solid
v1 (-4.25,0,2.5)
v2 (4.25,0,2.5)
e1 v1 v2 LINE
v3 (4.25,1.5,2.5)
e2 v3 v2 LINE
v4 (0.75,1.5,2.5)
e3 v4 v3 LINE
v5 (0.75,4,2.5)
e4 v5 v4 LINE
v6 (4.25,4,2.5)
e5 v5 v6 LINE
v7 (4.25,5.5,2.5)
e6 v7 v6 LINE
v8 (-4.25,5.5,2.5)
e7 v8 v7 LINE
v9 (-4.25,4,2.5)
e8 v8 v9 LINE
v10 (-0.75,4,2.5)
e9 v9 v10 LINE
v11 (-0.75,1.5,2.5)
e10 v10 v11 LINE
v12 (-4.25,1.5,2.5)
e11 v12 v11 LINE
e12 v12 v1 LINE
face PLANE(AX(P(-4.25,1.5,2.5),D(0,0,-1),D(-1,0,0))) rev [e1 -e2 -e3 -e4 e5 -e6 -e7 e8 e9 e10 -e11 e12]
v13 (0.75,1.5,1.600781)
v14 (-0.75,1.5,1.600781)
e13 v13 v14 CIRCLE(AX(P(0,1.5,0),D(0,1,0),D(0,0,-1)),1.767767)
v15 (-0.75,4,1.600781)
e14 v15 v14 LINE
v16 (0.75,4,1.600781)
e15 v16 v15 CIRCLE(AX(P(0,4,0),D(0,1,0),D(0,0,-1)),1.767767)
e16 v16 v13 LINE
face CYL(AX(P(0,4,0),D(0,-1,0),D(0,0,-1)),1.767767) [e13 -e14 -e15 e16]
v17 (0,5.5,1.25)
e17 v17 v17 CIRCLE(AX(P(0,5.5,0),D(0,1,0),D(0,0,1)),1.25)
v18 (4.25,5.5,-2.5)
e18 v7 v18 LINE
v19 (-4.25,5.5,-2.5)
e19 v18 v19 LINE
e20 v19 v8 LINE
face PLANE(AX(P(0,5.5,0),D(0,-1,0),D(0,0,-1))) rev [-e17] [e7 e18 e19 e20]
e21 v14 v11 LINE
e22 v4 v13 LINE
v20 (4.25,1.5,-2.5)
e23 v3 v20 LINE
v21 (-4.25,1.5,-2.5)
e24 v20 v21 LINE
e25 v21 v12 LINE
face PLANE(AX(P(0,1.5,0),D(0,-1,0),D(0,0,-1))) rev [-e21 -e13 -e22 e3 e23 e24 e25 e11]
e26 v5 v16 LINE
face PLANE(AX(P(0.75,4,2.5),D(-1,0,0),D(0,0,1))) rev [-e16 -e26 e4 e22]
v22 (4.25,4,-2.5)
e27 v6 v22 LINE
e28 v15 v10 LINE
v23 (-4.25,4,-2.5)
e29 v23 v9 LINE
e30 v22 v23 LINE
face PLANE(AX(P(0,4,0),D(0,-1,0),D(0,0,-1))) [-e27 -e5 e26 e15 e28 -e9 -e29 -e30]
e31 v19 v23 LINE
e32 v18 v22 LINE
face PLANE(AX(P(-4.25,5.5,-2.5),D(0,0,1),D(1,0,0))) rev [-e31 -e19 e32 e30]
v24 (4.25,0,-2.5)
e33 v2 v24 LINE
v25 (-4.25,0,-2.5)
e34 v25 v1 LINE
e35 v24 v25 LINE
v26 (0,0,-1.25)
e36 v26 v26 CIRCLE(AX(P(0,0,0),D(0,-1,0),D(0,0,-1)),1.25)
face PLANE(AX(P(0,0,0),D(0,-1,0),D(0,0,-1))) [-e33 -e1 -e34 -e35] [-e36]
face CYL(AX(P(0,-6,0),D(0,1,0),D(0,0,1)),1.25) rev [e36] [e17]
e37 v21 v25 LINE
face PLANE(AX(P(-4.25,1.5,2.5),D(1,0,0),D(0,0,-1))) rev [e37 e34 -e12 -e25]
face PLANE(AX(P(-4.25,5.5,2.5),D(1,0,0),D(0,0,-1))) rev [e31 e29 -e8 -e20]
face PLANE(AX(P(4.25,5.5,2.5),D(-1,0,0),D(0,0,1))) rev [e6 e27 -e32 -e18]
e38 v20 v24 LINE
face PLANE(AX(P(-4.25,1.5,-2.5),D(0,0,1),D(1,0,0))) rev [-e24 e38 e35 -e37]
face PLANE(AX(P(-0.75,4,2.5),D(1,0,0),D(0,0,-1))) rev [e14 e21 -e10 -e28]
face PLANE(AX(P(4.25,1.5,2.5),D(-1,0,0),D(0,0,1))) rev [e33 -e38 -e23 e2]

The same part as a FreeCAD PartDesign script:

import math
import FreeCAD as App
import Part
import Sketcher
Q = App.Units.Quantity

doc = App.newDocument("Part")
body = doc.addObject("PartDesign::Body", "Body")

# Sketch on XZ plane
sketch1 = body.newObject("Sketcher::SketchObject", "Sketch")
sketch1.AttachmentSupport = (doc.getObject("XZ_Plane"), [""])
sketch1.MapMode = "FlatFace"
sketch1.addGeometry(Part.LineSegment(App.Vector(-4, -2, 0), App.Vector(-4, 2, 0)), False)
sketch1.addGeometry(Part.LineSegment(App.Vector(-4, 2, 0), App.Vector(4, 2, 0)), False)
sketch1.addGeometry(Part.LineSegment(App.Vector(4, 2, 0), App.Vector(4, -2, 0)), False)
sketch1.addGeometry(Part.LineSegment(App.Vector(4, -2, 0), App.Vector(-4, -2, 0)), False)
sketch1.addConstraint(Sketcher.Constraint("Coincident", 0, 2, 1, 1))
sketch1.addConstraint(Sketcher.Constraint("Coincident", 1, 2, 2, 1))
sketch1.addConstraint(Sketcher.Constraint("Coincident", 2, 2, 3, 1))
sketch1.addConstraint(Sketcher.Constraint("Coincident", 3, 2, 0, 1))
sketch1.addConstraint(Sketcher.Constraint("Vertical", 0))
sketch1.addConstraint(Sketcher.Constraint("Horizontal", 1))
sketch1.addConstraint(Sketcher.Constraint("Vertical", 2))
sketch1.addConstraint(Sketcher.Constraint("Horizontal", 3))
sketch1.addConstraint(Sketcher.Constraint("Symmetric", 0, 2, 2, 2, -1, 1))
sketch1.addConstraint(Sketcher.Constraint("DistanceY", 0, 1, 0, 2, Q("5 mm")))
sketch1.addConstraint(Sketcher.Constraint("DistanceX", 1, 1, 1, 2, Q("8.5 mm")))
pad1 = body.newObject("PartDesign::Pad", "Pad")
pad1.Profile = sketch1
pad1.Length = 1.5
pad1.Reversed = True

# Sketch on XZ plane
sketch2 = body.newObject("Sketcher::SketchObject", "Sketch001")
sketch2.AttachmentSupport = (doc.getObject("XZ_Plane"), [""])
sketch2.MapMode = "FlatFace"
sketch2.AttachmentOffset = App.Placement(App.Vector(0, 0, -1.5), App.Rotation())
sketch2.addGeometry(Part.LineSegment(App.Vector(-0.8, 2.5, 0), App.Vector(0.8, 2.5, 0)), False)
sketch2.addGeometry(Part.LineSegment(App.Vector(0.8, 2.5, 0), App.Vector(0.8, 1.6, 0)), False)
sketch2.addGeometry(Part.ArcOfCircle(Part.Circle(App.Vector(0, 0, 0), App.Vector(0, 0, 1), 1.8), math.radians(115), math.radians(425)), False)
sketch2.addGeometry(Part.LineSegment(App.Vector(-0.8, 1.6, 0), App.Vector(-0.8, 2.5, 0)), False)
sketch2.addConstraint(Sketcher.Constraint("Coincident", 0, 2, 1, 1))
sketch2.addConstraint(Sketcher.Constraint("Coincident", 1, 2, 2, 2))
sketch2.addConstraint(Sketcher.Constraint("Coincident", 2, 1, 3, 1))
sketch2.addConstraint(Sketcher.Constraint("Coincident", 3, 2, 0, 1))
sketch2.addConstraint(Sketcher.Constraint("Horizontal", 0))
sketch2.addConstraint(Sketcher.Constraint("Vertical", 1))
sketch2.addConstraint(Sketcher.Constraint("Vertical", 3))
sketch2.addConstraint(Sketcher.Constraint("Coincident", 2, 3, -1, 1))
sketch2.addConstraint(Sketcher.Constraint("Horizontal", 1, 2, 2, 1))
sketch2.addConstraint(Sketcher.Constraint("DistanceX", 0, 1, 0, 2, Q("1.5 mm")))
sketch2.addConstraint(Sketcher.Constraint("DistanceY", -1, 1, 0, 2, Q("2.5 mm")))
sketch2.addConstraint(Sketcher.Constraint("Radius", 2, Q("1.767767 mm")))
pad2 = body.newObject("PartDesign::Pad", "Pad001")
pad2.Profile = sketch2
pad2.Length = 2.5
pad2.Reversed = True

# Sketch on XZ plane
sketch3 = body.newObject("Sketcher::SketchObject", "Sketch002")
sketch3.AttachmentSupport = (doc.getObject("XZ_Plane"), [""])
sketch3.MapMode = "FlatFace"
sketch3.AttachmentOffset = App.Placement(App.Vector(0, 0, -4), App.Rotation())
sketch3.addGeometry(Part.LineSegment(App.Vector(-4, -2, 0), App.Vector(-4, 2, 0)), False)
sketch3.addGeometry(Part.LineSegment(App.Vector(-4, 2, 0), App.Vector(4, 2, 0)), False)
sketch3.addGeometry(Part.LineSegment(App.Vector(4, 2, 0), App.Vector(4, -2, 0)), False)
sketch3.addGeometry(Part.LineSegment(App.Vector(4, -2, 0), App.Vector(-4, -2, 0)), False)
sketch3.addConstraint(Sketcher.Constraint("Coincident", 0, 2, 1, 1))
sketch3.addConstraint(Sketcher.Constraint("Coincident", 1, 2, 2, 1))
sketch3.addConstraint(Sketcher.Constraint("Coincident", 2, 2, 3, 1))
sketch3.addConstraint(Sketcher.Constraint("Coincident", 3, 2, 0, 1))
sketch3.addConstraint(Sketcher.Constraint("Vertical", 0))
sketch3.addConstraint(Sketcher.Constraint("Horizontal", 1))
sketch3.addConstraint(Sketcher.Constraint("Vertical", 2))
sketch3.addConstraint(Sketcher.Constraint("Horizontal", 3))
sketch3.addConstraint(Sketcher.Constraint("Symmetric", 0, 2, 2, 2, -1, 1))
sketch3.addConstraint(Sketcher.Constraint("DistanceY", 0, 1, 0, 2, Q("5 mm")))
sketch3.addConstraint(Sketcher.Constraint("DistanceX", 1, 1, 1, 2, Q("8.5 mm")))
pad3 = body.newObject("PartDesign::Pad", "Pad002")
pad3.Profile = sketch3
pad3.Length = 1.5
pad3.Reversed = True

# Sketch on XZ plane
sketch4 = body.newObject("Sketcher::SketchObject", "Sketch003")
sketch4.AttachmentSupport = (doc.getObject("XZ_Plane"), [""])
sketch4.MapMode = "FlatFace"
sketch4.AttachmentOffset = App.Placement(App.Vector(0, 0, -5.5), App.Rotation())
sketch4.addGeometry(Part.Circle(App.Vector(0, 0, 0), App.Vector(0, 0, 1), 1.2), False)
sketch4.addConstraint(Sketcher.Constraint("Coincident", 0, 3, -1, 1))
sketch4.addConstraint(Sketcher.Constraint("Diameter", 0, Q("2.5 mm")))
pocket1 = body.newObject("PartDesign::Pocket", "Pocket")
pocket1.Profile = sketch4
pocket1.Length = 11.5
pocket1.Reversed = True

doc.recompute()
